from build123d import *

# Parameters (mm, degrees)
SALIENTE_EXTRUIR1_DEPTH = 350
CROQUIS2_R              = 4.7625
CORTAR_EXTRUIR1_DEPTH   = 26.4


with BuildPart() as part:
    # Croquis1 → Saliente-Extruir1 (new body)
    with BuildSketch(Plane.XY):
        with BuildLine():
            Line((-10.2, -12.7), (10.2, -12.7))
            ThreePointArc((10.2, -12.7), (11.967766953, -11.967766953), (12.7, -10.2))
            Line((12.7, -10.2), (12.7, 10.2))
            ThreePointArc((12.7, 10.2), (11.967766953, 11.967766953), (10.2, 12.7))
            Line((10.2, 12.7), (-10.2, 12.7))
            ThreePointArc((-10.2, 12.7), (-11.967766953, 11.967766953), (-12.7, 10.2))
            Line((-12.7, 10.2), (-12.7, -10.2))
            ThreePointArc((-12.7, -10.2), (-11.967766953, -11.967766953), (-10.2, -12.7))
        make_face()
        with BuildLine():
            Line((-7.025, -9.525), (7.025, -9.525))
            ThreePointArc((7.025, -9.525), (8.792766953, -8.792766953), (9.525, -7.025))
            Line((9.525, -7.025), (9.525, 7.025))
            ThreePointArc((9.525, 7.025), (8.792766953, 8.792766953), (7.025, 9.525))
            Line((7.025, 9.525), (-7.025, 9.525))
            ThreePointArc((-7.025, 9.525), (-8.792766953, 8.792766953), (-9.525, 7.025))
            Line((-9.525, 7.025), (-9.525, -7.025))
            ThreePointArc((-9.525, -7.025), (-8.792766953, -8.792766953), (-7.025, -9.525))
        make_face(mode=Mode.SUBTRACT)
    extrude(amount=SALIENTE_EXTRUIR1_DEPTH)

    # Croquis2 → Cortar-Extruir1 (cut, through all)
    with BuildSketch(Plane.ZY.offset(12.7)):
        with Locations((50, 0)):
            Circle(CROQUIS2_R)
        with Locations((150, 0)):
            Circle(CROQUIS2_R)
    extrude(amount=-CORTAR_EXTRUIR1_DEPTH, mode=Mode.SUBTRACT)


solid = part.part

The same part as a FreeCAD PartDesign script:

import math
import FreeCAD as App
import Part
import Sketcher
from FreeCAD import Vector
Q = App.Units.Quantity

doc = App.newDocument("Part")
body = doc.addObject("PartDesign::Body", "Body")

sketch1 = doc.addObject("Sketcher::SketchObject", "Sketch")
body.addObject(sketch1)
sketch1.AttachmentSupport = (doc.XY_Plane, [""])
sketch1.MapMode = "FlatFace"
sketch1.addGeometry(Part.LineSegment(Vector(-10.2, -12.7, 0), Vector(10.2, -12.7, 0)), False)
sketch1.addGeometry(Part.ArcOfCircle(Part.Circle(Vector(10.2, -10.2, 0), Vector(0, 0, 1), 2.5), math.radians(-90), math.radians(0)), False)
sketch1.addGeometry(Part.LineSegment(Vector(12.7, -10.2, 0), Vector(12.7, 10.2, 0)), False)
sketch1.addGeometry(Part.ArcOfCircle(Part.Circle(Vector(10.2, 10.2, 0), Vector(0, 0, 1), 2.5), math.radians(0), math.radians(90)), False)
sketch1.addGeometry(Part.LineSegment(Vector(10.2, 12.7, 0), Vector(-10.2, 12.7, 0)), False)
sketch1.addGeometry(Part.ArcOfCircle(Part.Circle(Vector(-10.2, 10.2, 0), Vector(0, 0, 1), 2.5), math.radians(90), math.radians(180)), False)
sketch1.addGeometry(Part.LineSegment(Vector(-12.7, 10.2, 0), Vector(-12.7, -10.2, 0)), False)
sketch1.addGeometry(Part.ArcOfCircle(Part.Circle(Vector(-10.2, -10.2, 0), Vector(0, 0, 1), 2.5), math.radians(180), math.radians(270)), False)
sketch1.addGeometry(Part.LineSegment(Vector(7, -9.5, 0), Vector(-7, -9.5, 0)), False)
sketch1.addGeometry(Part.ArcOfCircle(Part.Circle(Vector(-7, -7, 0), Vector(0, 0, 1), 2.5), math.radians(180), math.radians(270)), False)
sketch1.addGeometry(Part.LineSegment(Vector(-9.5, -7, 0), Vector(-9.5, 7, 0)), False)
sketch1.addGeometry(Part.ArcOfCircle(Part.Circle(Vector(-7, 7, 0), Vector(0, 0, 1), 2.5), math.radians(90), math.radians(180)), False)
sketch1.addGeometry(Part.LineSegment(Vector(-7, 9.5, 0), Vector(7, 9.5, 0)), False)
sketch1.addGeometry(Part.ArcOfCircle(Part.Circle(Vector(7, 7, 0), Vector(0, 0, 1), 2.5), math.radians(0), math.radians(90)), False)
sketch1.addGeometry(Part.LineSegment(Vector(9.5, 7, 0), Vector(9.5, -7, 0)), False)
sketch1.addGeometry(Part.ArcOfCircle(Part.Circle(Vector(7, -7, 0), Vector(0, 0, 1), 2.5), math.radians(-90), math.radians(0)), False)
sketch1.addConstraint(Sketcher.Constraint("Tangent", 0, 2, 1, 1))
sketch1.addConstraint(Sketcher.Constraint("Tangent", 1, 2, 2, 1))
sketch1.addConstraint(Sketcher.Constraint("Tangent", 2, 2, 3, 1))
sketch1.addConstraint(Sketcher.Constraint("Tangent", 3, 2, 4, 1))
sketch1.addConstraint(Sketcher.Constraint("Tangent", 4, 2, 5, 1))
sketch1.addConstraint(Sketcher.Constraint("Tangent", 5, 2, 6, 1))
sketch1.addConstraint(Sketcher.Constraint("Tangent", 6, 2, 7, 1))
sketch1.addConstraint(Sketcher.Constraint("Tangent", 7, 2, 0, 1))
sketch1.addConstraint(Sketcher.Constraint("Tangent", 8, 2, 9, 2))
sketch1.addConstraint(Sketcher.Constraint("Tangent", 9, 1, 10, 1))
sketch1.addConstraint(Sketcher.Constraint("Tangent", 10, 2, 11, 2))
sketch1.addConstraint(Sketcher.Constraint("Tangent", 11, 1, 12, 1))
sketch1.addConstraint(Sketcher.Constraint("Tangent", 12, 2, 13, 2))
sketch1.addConstraint(Sketcher.Constraint("Tangent", 13, 1, 14, 1))
sketch1.addConstraint(Sketcher.Constraint("Tangent", 14, 2, 15, 2))
sketch1.addConstraint(Sketcher.Constraint("Tangent", 15, 1, 8, 1))
sketch1.addConstraint(Sketcher.Constraint("Horizontal", 0))
sketch1.addConstraint(Sketcher.Constraint("Vertical", 2))
sketch1.addConstraint(Sketcher.Constraint("Horizontal", 4))
sketch1.addConstraint(Sketcher.Constraint("Vertical", 6))
sketch1.addConstraint(Sketcher.Constraint("Horizontal", 8))
sketch1.addConstraint(Sketcher.Constraint("Vertical", 10))
sketch1.addConstraint(Sketcher.Constraint("Horizontal", 12))
sketch1.addConstraint(Sketcher.Constraint("Vertical", 14))
sketch1.addConstraint(Sketcher.Constraint("Equal", 1, 3))
sketch1.addConstraint(Sketcher.Constraint("Equal", 3, 5))
sketch1.addConstraint(Sketcher.Constraint("Equal", 5, 7))
sketch1.addConstraint(Sketcher.Constraint("Equal", 7, 9))
sketch1.addConstraint(Sketcher.Constraint("Equal", 9, 11))
sketch1.addConstraint(Sketcher.Constraint("Equal", 11, 13))
sketch1.addConstraint(Sketcher.Constraint("Equal", 13, 15))
sketch1.addConstraint(Sketcher.Constraint("Symmetric", 1, 3, 5, 3, -1, 1))
sketch1.addConstraint(Sketcher.Constraint("Symmetric", 9, 3, 13, 3, -1, 1))
sketch1.addConstraint(Sketcher.Constraint("Equal", 4, 2))
sketch1.addConstraint(Sketcher.Constraint("Equal", 12, 10))
sketch1.addConstraint(Sketcher.Constraint("Radius", 1, Q("2.5 mm")))
sketch1.addConstraint(Sketcher.Constraint("DistanceX", 0, 1, 0, 2, Q("20.4 mm")))
sketch1.addConstraint(Sketcher.Constraint("DistanceX", 8, 2, 8, 1, Q("14.05 mm")))
pad1 = doc.addObject("PartDesign::Pad", "Pad")
body.addObject(pad1)
pad1.Profile = sketch1
pad1.Length = 350

sketch2 = doc.addObject("Sketcher::SketchObject", "Sketch001")
body.addObject(sketch2)
sketch2.AttachmentSupport = (doc.YZ_Plane, [""])
sketch2.MapMode = "FlatFace"
sketch2.AttachmentOffset = App.Placement(Vector(0, 0, -12.7), App.Rotation())
sketch2.addGeometry(Part.Circle(Vector(0, 50, 0), Vector(0, 0, 1), 4.8), False)
sketch2.addGeometry(Part.Circle(Vector(0, 150, 0), Vector(0, 0, 1), 4.8), False)
sketch2.addConstraint(Sketcher.Constraint("Equal", 0, 1))
sketch2.addConstraint(Sketcher.Constraint("PointOnObject", 0, 3, -2))
sketch2.addConstraint(Sketcher.Constraint("PointOnObject", 1, 3, -2))
sketch2.addConstraint(Sketcher.Constraint("Diameter", 0, Q("9.525 mm")))
sketch2.addConstraint(Sketcher.Constraint("DistanceY", -1, 1, 0, 3, Q("50 mm")))
sketch2.addConstraint(Sketcher.Constraint("DistanceY", -1, 1, 1, 3, Q("150 mm")))
pocket1 = doc.addObject("PartDesign::Pocket", "Pocket")
body.addObject(pocket1)
pocket1.Profile = sketch2
pocket1.Type = "ThroughAll"
pocket1.Reversed = True

doc.recompute()
